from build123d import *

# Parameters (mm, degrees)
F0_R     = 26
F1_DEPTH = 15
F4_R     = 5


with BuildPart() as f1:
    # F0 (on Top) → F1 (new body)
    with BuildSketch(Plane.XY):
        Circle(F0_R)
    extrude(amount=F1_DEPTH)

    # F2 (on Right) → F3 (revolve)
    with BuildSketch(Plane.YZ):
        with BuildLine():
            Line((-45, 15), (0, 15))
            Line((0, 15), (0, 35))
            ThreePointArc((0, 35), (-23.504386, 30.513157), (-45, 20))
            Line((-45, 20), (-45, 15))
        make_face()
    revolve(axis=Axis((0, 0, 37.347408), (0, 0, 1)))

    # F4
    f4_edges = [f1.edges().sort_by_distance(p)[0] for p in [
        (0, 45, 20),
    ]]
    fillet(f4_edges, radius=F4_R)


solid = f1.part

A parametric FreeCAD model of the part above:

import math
import FreeCAD as App
import Part
import Sketcher
Q = App.Units.Quantity


def edges_at(feature, points):
    """Names of the edges that pass closest to the given points."""
    edges = feature.Shape.Edges
    near = lambda p: min(range(len(edges)), key=lambda i: edges[i].distToShape(Part.Vertex(*p))[0])
    return sorted({f"Edge{near(p) + 1}" for p in points})

doc = App.newDocument("Part")
body = doc.addObject("PartDesign::Body", "Body")

# Sketch on XY plane
sketch1 = body.newObject("Sketcher::SketchObject", "Sketch")
sketch1.AttachmentSupport = (doc.getObject("XY_Plane"), [""])
sketch1.MapMode = "FlatFace"
sketch1.addGeometry(Part.Circle(App.Vector(0, 0, 0), App.Vector(0, 0, 1), 26), False)
sketch1.addConstraint([
    Sketcher.Constraint("Coincident", 0, 3, -1, 1),
    Sketcher.Constraint("Diameter", 0, Q("52 mm")),
])
pad1 = body.newObject("PartDesign::Pad", "Pad")
pad1.Profile = sketch1
pad1.Length = 15

# Sketch on YZ plane
sketch2 = body.newObject("Sketcher::SketchObject", "Sketch001")
sketch2.AttachmentSupport = (doc.getObject("YZ_Plane"), [""])
sketch2.MapMode = "FlatFace"
sketch2.addGeometry([
    Part.LineSegment(App.Vector(-45, 15, 0), App.Vector(0, 15, 0)),
    Part.LineSegment(App.Vector(0, 15, 0), App.Vector(0, 35, 0)),
    Part.ArcOfCircle(Part.Circle(App.Vector(5, -55, 0), App.Vector(0, 0, 1), 90), math.radians(93), math.radians(124)),
    Part.LineSegment(App.Vector(-45, 20, 0), App.Vector(-45, 15, 0)),
], False)
sketch2.addConstraint([
    Sketcher.Constraint("Coincident", 0, 2, 1, 1),
    Sketcher.Constraint("Coincident", 1, 2, 2, 1),
    Sketcher.Constraint("Coincident", 2, 2, 3, 1),
    Sketcher.Constraint("Coincident", 3, 2, 0, 1),
    Sketcher.Constraint("Horizontal", 0),
    Sketcher.Constraint("Vertical", 1),
    Sketcher.Constraint("Vertical", 3),
    Sketcher.Constraint("PointOnObject", 0, 2, -2),
    Sketcher.Constraint("DistanceX", 0, 1, 0, 2, Q("45 mm")),
    Sketcher.Constraint("DistanceY", 1, 1, 1, 2, Q("20 mm")),
    Sketcher.Constraint("DistanceY", 3, 2, 3, 1, Q("5 mm")),
    Sketcher.Constraint("DistanceY", -1, 1, 0, 2, Q("15 mm")),
    Sketcher.Constraint("Radius", 2, Q("90.138776 mm")),
])
revolution = body.newObject("PartDesign::Revolution", "Revolution")
revolution.Profile = sketch2
revolution.ReferenceAxis = (sketch2, ["V_Axis"])
revolution.Angle = 360
doc.recompute()

fillet = body.newObject("PartDesign::Fillet", "Fillet")
fillet.Base = (revolution, edges_at(revolution, [(0, 45, 20)]))
fillet.Radius = 5

doc.recompute()
